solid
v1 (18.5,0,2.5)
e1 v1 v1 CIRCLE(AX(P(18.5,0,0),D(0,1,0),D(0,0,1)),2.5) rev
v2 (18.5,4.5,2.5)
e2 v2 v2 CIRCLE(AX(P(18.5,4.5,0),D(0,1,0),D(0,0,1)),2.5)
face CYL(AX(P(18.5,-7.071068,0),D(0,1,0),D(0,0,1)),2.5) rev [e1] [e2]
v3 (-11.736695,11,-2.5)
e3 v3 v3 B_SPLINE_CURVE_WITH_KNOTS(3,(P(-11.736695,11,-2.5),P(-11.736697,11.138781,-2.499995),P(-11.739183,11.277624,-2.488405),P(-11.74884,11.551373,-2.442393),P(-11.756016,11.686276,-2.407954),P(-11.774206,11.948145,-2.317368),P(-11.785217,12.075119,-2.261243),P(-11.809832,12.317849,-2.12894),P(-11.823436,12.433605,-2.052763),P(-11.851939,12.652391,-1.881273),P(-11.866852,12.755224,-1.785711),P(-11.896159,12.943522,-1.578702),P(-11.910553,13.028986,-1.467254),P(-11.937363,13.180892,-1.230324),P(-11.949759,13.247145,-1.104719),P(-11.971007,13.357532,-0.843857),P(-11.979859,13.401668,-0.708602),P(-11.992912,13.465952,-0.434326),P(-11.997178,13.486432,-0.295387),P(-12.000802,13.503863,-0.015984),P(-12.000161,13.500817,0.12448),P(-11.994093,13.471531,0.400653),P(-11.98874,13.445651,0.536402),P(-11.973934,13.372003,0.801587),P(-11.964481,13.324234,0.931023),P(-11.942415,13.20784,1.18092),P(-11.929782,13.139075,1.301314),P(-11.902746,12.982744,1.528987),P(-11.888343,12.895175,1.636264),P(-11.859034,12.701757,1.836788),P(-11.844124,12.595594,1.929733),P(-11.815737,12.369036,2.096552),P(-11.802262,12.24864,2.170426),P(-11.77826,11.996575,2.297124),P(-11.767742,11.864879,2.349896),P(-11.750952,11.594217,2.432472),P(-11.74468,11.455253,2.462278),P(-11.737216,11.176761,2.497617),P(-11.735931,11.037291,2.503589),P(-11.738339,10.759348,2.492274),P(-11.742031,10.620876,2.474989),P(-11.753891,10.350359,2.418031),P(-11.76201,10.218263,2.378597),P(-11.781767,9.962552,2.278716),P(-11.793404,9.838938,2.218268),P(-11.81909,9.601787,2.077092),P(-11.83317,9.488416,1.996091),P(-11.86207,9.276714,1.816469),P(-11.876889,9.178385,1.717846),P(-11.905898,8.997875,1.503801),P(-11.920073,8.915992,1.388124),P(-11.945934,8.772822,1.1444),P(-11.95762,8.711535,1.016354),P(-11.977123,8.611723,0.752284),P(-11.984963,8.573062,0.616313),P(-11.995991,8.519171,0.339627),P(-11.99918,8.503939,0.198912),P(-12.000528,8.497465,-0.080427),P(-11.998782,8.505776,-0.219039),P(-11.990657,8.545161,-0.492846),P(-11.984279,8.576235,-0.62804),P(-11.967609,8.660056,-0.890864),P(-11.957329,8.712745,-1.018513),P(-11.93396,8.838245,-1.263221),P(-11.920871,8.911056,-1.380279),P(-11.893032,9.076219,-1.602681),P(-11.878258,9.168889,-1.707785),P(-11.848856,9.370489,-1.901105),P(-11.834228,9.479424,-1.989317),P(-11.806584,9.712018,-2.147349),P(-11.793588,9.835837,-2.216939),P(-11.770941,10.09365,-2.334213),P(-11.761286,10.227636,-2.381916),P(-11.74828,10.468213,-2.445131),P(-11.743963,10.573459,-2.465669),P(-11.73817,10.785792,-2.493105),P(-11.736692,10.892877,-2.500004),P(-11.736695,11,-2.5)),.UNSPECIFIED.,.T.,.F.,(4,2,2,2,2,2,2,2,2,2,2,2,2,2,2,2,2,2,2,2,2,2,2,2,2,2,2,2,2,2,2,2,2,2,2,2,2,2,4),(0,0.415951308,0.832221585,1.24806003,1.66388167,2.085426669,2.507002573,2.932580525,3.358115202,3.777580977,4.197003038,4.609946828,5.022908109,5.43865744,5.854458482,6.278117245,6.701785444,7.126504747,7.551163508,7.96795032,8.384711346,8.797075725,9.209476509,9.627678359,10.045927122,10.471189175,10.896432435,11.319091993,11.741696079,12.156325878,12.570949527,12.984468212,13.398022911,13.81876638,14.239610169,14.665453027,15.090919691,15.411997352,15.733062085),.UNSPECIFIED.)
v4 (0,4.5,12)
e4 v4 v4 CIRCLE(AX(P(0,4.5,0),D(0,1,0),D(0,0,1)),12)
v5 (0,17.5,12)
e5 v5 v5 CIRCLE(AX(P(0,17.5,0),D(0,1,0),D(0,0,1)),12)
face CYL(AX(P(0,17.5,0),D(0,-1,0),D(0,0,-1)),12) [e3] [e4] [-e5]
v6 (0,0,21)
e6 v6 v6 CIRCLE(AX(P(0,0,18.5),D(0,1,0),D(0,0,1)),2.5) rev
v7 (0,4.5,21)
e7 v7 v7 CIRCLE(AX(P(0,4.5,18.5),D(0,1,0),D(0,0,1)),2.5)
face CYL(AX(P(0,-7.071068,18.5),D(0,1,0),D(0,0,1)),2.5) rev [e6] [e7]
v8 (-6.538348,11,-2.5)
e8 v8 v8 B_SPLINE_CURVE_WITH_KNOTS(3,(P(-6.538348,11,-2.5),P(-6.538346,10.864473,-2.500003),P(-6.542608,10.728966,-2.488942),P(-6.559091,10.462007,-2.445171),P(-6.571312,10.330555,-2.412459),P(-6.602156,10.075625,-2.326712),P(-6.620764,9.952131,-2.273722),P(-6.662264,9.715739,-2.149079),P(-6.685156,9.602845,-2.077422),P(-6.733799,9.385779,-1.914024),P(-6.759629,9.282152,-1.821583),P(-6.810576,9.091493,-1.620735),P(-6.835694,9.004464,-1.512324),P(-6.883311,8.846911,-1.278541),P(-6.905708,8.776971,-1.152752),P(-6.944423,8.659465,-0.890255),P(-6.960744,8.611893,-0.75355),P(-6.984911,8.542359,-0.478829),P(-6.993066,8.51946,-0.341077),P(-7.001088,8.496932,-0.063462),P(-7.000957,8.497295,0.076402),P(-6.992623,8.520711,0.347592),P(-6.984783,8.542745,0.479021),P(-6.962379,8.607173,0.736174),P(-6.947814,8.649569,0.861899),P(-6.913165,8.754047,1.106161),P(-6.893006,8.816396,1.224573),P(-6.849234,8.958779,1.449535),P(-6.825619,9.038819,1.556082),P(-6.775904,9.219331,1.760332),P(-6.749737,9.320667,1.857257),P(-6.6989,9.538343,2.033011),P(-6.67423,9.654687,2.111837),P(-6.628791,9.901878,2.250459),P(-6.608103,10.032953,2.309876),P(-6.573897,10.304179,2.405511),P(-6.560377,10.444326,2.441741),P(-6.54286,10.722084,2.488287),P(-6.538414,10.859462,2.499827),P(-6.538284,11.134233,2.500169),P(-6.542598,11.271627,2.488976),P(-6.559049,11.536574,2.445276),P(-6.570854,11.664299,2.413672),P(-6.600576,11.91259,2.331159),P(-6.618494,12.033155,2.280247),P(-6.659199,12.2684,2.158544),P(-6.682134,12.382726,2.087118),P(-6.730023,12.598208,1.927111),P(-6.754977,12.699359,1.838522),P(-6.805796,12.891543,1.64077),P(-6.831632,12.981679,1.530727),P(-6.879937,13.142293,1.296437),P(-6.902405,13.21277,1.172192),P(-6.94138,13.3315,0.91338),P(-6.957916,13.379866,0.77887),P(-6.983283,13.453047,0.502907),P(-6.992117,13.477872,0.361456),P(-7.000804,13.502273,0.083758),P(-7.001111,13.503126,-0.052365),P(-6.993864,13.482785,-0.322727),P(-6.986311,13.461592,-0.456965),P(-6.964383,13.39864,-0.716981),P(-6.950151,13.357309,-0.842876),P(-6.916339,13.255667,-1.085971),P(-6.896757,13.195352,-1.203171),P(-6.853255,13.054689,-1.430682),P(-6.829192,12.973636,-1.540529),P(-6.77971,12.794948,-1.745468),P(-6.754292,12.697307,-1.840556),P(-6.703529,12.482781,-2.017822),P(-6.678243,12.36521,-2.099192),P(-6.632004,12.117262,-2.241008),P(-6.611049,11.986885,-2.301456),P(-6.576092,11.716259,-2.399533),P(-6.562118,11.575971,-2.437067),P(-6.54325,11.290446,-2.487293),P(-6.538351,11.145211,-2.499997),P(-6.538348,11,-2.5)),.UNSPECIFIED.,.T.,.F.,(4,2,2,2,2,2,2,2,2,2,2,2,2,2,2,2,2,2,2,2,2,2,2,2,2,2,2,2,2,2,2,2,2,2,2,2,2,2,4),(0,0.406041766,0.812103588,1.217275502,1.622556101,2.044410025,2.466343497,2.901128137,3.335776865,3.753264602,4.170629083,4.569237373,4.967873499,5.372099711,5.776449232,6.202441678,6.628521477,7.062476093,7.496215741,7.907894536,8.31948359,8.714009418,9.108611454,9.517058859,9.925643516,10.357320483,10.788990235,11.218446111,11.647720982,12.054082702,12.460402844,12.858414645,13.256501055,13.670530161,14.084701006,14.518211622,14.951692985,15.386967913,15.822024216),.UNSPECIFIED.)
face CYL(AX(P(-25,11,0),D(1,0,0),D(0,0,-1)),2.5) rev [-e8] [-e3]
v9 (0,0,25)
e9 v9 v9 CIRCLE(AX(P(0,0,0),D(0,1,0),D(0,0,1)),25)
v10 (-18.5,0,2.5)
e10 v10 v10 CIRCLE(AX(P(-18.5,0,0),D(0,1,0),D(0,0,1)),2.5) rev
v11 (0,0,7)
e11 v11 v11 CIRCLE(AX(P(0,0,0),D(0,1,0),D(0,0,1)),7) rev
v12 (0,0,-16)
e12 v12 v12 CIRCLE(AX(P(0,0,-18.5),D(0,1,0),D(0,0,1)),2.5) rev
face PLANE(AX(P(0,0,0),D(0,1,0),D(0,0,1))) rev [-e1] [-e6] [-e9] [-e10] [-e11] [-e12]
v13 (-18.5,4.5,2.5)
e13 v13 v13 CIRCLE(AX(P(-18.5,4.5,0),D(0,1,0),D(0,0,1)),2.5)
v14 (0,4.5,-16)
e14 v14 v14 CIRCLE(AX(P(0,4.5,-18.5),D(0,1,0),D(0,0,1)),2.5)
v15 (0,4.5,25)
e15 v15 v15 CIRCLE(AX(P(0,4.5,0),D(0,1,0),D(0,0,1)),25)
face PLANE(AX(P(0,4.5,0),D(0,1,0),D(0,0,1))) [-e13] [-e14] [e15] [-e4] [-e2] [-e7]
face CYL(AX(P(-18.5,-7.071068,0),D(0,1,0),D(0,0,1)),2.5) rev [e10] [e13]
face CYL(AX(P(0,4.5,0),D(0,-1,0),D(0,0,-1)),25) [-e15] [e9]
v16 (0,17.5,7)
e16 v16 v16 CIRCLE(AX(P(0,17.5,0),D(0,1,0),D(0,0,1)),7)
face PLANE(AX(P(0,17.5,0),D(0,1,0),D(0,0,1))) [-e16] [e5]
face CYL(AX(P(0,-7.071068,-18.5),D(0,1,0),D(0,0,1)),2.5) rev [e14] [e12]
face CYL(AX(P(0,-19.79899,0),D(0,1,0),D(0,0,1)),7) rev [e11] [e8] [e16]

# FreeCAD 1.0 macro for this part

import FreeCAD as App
import Part
import Sketcher

doc = App.newDocument("Part")
body = doc.addObject("PartDesign::Body", "Body")

# Sketch on XZ plane
sketch1 = body.newObject("Sketcher::SketchObject", "Sketch")
sketch1.AttachmentSupport = (doc.getObject("XZ_Plane"), [""])
sketch1.MapMode = "FlatFace"
sketch1.addGeometry(Part.Circle(App.Vector(0, 0, 0), App.Vector(0, 0, 1), 25), False)
sketch1.addConstraint([
    Sketcher.Constraint("Coincident", 0, 3, -1, 1),
    Sketcher.Constraint("Diameter", 0, 50.0),
])
pad1 = body.newObject("PartDesign::Pad", "Pad")
pad1.Profile = sketch1
pad1.Length = 4.5
pad1.Reversed = True

# Sketch on XZ plane
sketch2 = body.newObject("Sketcher::SketchObject", "Sketch001")
sketch2.AttachmentSupport = (doc.getObject("XZ_Plane"), [""])
sketch2.MapMode = "FlatFace"
sketch2.AttachmentOffset = App.Placement(App.Vector(0, 0, -4.5), App.Rotation())
sketch2.addGeometry(Part.Circle(App.Vector(0, 0, 0), App.Vector(0, 0, 1), 12), False)
sketch2.addConstraint([
    Sketcher.Constraint("Coincident", 0, 3, -1, 1),
    Sketcher.Constraint("Diameter", 0, 24.0),
])
pad2 = body.newObject("PartDesign::Pad", "Pad001")
pad2.Profile = sketch2
pad2.Length = 13
pad2.Reversed = True

# Sketch on XZ plane
sketch3 = body.newObject("Sketcher::SketchObject", "Sketch002")
sketch3.AttachmentSupport = (doc.getObject("XZ_Plane"), [""])
sketch3.MapMode = "FlatFace"
sketch3.AttachmentOffset = App.Placement(App.Vector(0, 0, -17.5), App.Rotation())
sketch3.addGeometry(Part.Circle(App.Vector(0, 0, 0), App.Vector(0, 0, 1), 7), False)
sketch3.addConstraint([
    Sketcher.Constraint("Coincident", 0, 3, -1, 1),
    Sketcher.Constraint("Diameter", 0, 14.0),
])
pocket1 = body.newObject("PartDesign::Pocket", "Pocket")
pocket1.Profile = sketch3
pocket1.Length = 17.5
pocket1.Reversed = True

# Sketch on XZ plane
sketch4 = body.newObject("Sketcher::SketchObject", "Sketch003")
sketch4.AttachmentSupport = (doc.getObject("XZ_Plane"), [""])
sketch4.MapMode = "FlatFace"
sketch4.AttachmentOffset = App.Placement(App.Vector(0, 0, -4.5), App.Rotation())
sketch4.addGeometry([
    Part.Circle(App.Vector(-18.5, 0, 0), App.Vector(0, 0, 1), 2.5),
    Part.Circle(App.Vector(0, -18.5, 0), App.Vector(0, 0, 1), 2.5),
    Part.Circle(App.Vector(18.5, 0, 0), App.Vector(0, 0, 1), 2.5),
    Part.Circle(App.Vector(0, 18.5, 0), App.Vector(0, 0, 1), 2.5),
], False)
sketch4.addConstraint([
    Sketcher.Constraint("Equal", 0, 1),
    Sketcher.Constraint("Equal", 1, 2),
    Sketcher.Constraint("Equal", 2, 3),
    Sketcher.Constraint("Symmetric", 0, 3, 2, 3, -1, 1),
    Sketcher.Constraint("Symmetric", 1, 3, 3, 3, -1, 1),
    Sketcher.Constraint("PointOnObject", 0, 3, -1),
    Sketcher.Constraint("PointOnObject", 1, 3, -2),
    Sketcher.Constraint("Diameter", 0, 5.0),
    Sketcher.Constraint("DistanceX", 0, 3, 2, 3, 37.0),
    Sketcher.Constraint("DistanceY", 1, 3, 3, 3, 37.0),
])
pocket2 = body.newObject("PartDesign::Pocket", "Pocket001")
pocket2.Profile = sketch4
pocket2.Length = 4.5
pocket2.Reversed = True

# Sketch on YZ plane
sketch5 = body.newObject("Sketcher::SketchObject", "Sketch004")
sketch5.AttachmentSupport = (doc.getObject("YZ_Plane"), [""])
sketch5.MapMode = "FlatFace"
sketch5.addGeometry(Part.Circle(App.Vector(11, 0, 0), App.Vector(0, 0, 1), 2.5), False)
sketch5.addConstraint([
    Sketcher.Constraint("PointOnObject", 0, 3, -1),
    Sketcher.Constraint("Diameter", 0, 5.0),
    Sketcher.Constraint("DistanceX", -1, 1, 0, 3, 11.0),
])
pocket3 = body.newObject("PartDesign::Pocket", "Pocket002")
pocket3.Profile = sketch5
pocket3.Length = 25

doc.recompute()
